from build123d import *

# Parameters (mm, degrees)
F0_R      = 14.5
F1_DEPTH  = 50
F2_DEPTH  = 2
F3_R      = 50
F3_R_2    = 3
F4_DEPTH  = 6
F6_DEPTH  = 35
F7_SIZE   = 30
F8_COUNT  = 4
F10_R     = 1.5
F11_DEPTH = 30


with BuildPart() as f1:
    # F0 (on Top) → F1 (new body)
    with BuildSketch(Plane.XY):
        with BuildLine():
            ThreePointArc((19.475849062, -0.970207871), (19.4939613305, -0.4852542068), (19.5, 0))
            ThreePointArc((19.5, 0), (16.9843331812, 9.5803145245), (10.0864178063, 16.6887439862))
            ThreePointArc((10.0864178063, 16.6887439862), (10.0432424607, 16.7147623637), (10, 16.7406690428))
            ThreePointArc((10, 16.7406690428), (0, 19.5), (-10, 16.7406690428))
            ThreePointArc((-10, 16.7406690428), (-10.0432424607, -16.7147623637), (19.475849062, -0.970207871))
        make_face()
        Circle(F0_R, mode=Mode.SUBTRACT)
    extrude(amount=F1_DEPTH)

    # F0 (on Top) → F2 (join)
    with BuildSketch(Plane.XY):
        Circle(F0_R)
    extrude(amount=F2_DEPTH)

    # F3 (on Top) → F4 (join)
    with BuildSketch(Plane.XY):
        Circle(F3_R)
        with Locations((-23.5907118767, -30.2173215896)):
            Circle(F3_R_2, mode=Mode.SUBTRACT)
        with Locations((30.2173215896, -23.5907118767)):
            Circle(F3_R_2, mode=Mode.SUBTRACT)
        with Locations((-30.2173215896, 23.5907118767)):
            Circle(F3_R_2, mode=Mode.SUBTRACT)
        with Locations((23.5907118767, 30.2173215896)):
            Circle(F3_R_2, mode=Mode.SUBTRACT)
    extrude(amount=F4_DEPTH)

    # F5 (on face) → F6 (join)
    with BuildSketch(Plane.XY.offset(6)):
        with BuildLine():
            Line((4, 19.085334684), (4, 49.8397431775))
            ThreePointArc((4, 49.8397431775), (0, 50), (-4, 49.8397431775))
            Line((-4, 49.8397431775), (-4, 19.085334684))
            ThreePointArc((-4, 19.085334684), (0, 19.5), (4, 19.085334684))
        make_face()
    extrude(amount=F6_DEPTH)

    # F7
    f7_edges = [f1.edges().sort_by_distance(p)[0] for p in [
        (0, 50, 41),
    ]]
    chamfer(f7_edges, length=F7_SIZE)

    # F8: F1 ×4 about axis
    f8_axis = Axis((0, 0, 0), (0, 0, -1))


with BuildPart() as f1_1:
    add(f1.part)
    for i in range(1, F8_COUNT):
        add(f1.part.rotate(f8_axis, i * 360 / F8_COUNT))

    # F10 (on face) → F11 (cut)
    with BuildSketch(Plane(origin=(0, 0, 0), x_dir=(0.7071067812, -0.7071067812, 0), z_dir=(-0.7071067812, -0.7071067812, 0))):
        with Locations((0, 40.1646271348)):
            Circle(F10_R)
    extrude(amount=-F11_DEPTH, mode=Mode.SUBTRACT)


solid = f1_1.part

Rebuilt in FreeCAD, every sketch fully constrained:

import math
import FreeCAD as App
import Part
import Sketcher
from FreeCAD import Vector
Q = App.Units.Quantity


def edges_at(feature, points):
    """Names of the edges that pass closest to the given points."""
    edges = feature.Shape.Edges
    near = lambda p: min(range(len(edges)), key=lambda i: edges[i].distToShape(Part.Vertex(*p))[0])
    return sorted({f"Edge{near(p) + 1}" for p in points})

doc = App.newDocument("Part")
body = doc.addObject("PartDesign::Body", "Body")

# Sketch on XY plane
sketch1 = body.newObject("Sketcher::SketchObject", "Sketch")
sketch1.AttachmentSupport = (doc.getObject("XY_Plane"), [""])
sketch1.MapMode = "FlatFace"
sketch1.addGeometry(Part.ArcOfCircle(Part.Circle(Vector(0, 0, 0), Vector(0, 0, 1), 19.5), math.radians(-2.85), math.radians(0)), False)
sketch1.addGeometry(Part.ArcOfCircle(Part.Circle(Vector(0, 0, 0), Vector(0, 0, 1), 19.5), math.radians(0), math.radians(59)), False)
sketch1.addGeometry(Part.ArcOfCircle(Part.Circle(Vector(0, 0, 0), Vector(0, 0, 1), 19.5), math.radians(58.85), math.radians(59.15)), False)
sketch1.addGeometry(Part.ArcOfCircle(Part.Circle(Vector(0, 0, 0), Vector(0, 0, 1), 19.5), math.radians(59), math.radians(121)), False)
sketch1.addGeometry(Part.ArcOfCircle(Part.Circle(Vector(0, 0, 0), Vector(0, 0, 1), 19.5), math.radians(121), math.radians(357)), False)
sketch1.addGeometry(Part.Circle(Vector(0, 0, 0), Vector(0, 0, 1), 14.5), False)
sketch1.addConstraint(Sketcher.Constraint("Tangent", 0, 2, 1, 1))
sketch1.addConstraint(Sketcher.Constraint("Tangent", 1, 2, 2, 1))
sketch1.addConstraint(Sketcher.Constraint("Tangent", 2, 2, 3, 1))
sketch1.addConstraint(Sketcher.Constraint("Tangent", 3, 2, 4, 1))
sketch1.addConstraint(Sketcher.Constraint("Tangent", 4, 2, 0, 1))
sketch1.addConstraint(Sketcher.Constraint("Coincident", 0, 3, -1, 1))
sketch1.addConstraint(Sketcher.Constraint("Coincident", 2, 3, -1, 1))
sketch1.addConstraint(Sketcher.Constraint("Coincident", 5, 3, -1, 1))
sketch1.addConstraint(Sketcher.Constraint("PointOnObject", 0, 2, -1))
sketch1.addConstraint(Sketcher.Constraint("Horizontal", 2, 2, 3, 2))
sketch1.addConstraint(Sketcher.Constraint("Diameter", 5, Q("29 mm")))
sketch1.addConstraint(Sketcher.Constraint("Radius", 0, Q("19.5 mm")))
sketch1.addConstraint(Sketcher.Constraint("DistanceX", -1, 1, 2, 2, Q("10 mm")))
sketch1.addConstraint(Sketcher.Constraint("DistanceX", -1, 1, 4, 2, Q("19.475849 mm")))
sketch1.addConstraint(Sketcher.Constraint("DistanceX", -1, 1, 1, 2, Q("10.086418 mm")))
pad1 = body.newObject("PartDesign::Pad", "Pad")
pad1.Profile = sketch1
pad1.Length = 50

# Sketch on XY plane
sketch2 = body.newObject("Sketcher::SketchObject", "Sketch001")
sketch2.AttachmentSupport = (doc.getObject("XY_Plane"), [""])
sketch2.MapMode = "FlatFace"
sketch2.addGeometry(Part.Circle(Vector(0, 0, 0), Vector(0, 0, 1), 14), False)
sketch2.addConstraint(Sketcher.Constraint("Coincident", 0, 3, -1, 1))
sketch2.addConstraint(Sketcher.Constraint("Diameter", 0, Q("29 mm")))
pad2 = body.newObject("PartDesign::Pad", "Pad001")
pad2.Profile = sketch2
pad2.Length = 2

# Sketch on XY plane
sketch3 = body.newObject("Sketcher::SketchObject", "Sketch002")
sketch3.AttachmentSupport = (doc.getObject("XY_Plane"), [""])
sketch3.MapMode = "FlatFace"
sketch3.addGeometry(Part.Circle(Vector(0, 0, 0), Vector(0, 0, 1), 50), False)
sketch3.addGeometry(Part.Circle(Vector(-23.6, -30.2, 0), Vector(0, 0, 1), 3), False)
sketch3.addGeometry(Part.Circle(Vector(30.2, -23.6, 0), Vector(0, 0, 1), 3), False)
sketch3.addGeometry(Part.Circle(Vector(-30.2, 23.6, 0), Vector(0, 0, 1), 3), False)
sketch3.addGeometry(Part.Circle(Vector(23.6, 30.2, 0), Vector(0, 0, 1), 3), False)
sketch3.addConstraint(Sketcher.Constraint("Coincident", 0, 3, -1, 1))
sketch3.addConstraint(Sketcher.Constraint("Equal", 1, 2))
sketch3.addConstraint(Sketcher.Constraint("Equal", 2, 3))
sketch3.addConstraint(Sketcher.Constraint("Equal", 3, 4))
sketch3.addConstraint(Sketcher.Constraint("Symmetric", 2, 3, 3, 3, -1, 1))
sketch3.addConstraint(Sketcher.Constraint("Symmetric", 1, 3, 4, 3, -1, 1))
sketch3.addConstraint(Sketcher.Constraint("Diameter", 0, Q("100 mm")))
sketch3.addConstraint(Sketcher.Constraint("Diameter", 1, Q("6 mm")))
sketch3.addConstraint(Sketcher.Constraint("DistanceX", 1, 3, -1, 1, Q("23.590712 mm")))
sketch3.addConstraint(Sketcher.Constraint("DistanceY", 1, 3, -1, 1, Q("30.217322 mm")))
sketch3.addConstraint(Sketcher.Constraint("DistanceX", -1, 1, 2, 3, Q("30.217322 mm")))
sketch3.addConstraint(Sketcher.Constraint("DistanceY", 2, 3, -1, 1, Q("23.590712 mm")))
pad3 = body.newObject("PartDesign::Pad", "Pad002")
pad3.Profile = sketch3
pad3.Length = 6

# Sketch on XY plane
sketch4 = body.newObject("Sketcher::SketchObject", "Sketch003")
sketch4.AttachmentSupport = (doc.getObject("XY_Plane"), [""])
sketch4.MapMode = "FlatFace"
sketch4.AttachmentOffset = App.Placement(Vector(0, 0, 6), App.Rotation())
sketch4.addGeometry(Part.LineSegment(Vector(4, 19, 0), Vector(4, 50, 0)), False)
sketch4.addGeometry(Part.ArcOfCircle(Part.Circle(Vector(0, 0, 0), Vector(0, 0, 1), 50), math.radians(85.41), math.radians(94.59)), False)
sketch4.addGeometry(Part.LineSegment(Vector(-4, 50, 0), Vector(-4, 19, 0)), False)
sketch4.addGeometry(Part.ArcOfCircle(Part.Circle(Vector(0, 0, 0), Vector(0, 0, 1), 20), math.radians(78), math.radians(102)), False)
sketch4.addConstraint(Sketcher.Constraint("Coincident", 0, 2, 1, 1))
sketch4.addConstraint(Sketcher.Constraint("Coincident", 1, 2, 2, 1))
sketch4.addConstraint(Sketcher.Constraint("Coincident", 2, 2, 3, 2))
sketch4.addConstraint(Sketcher.Constraint("Coincident", 3, 1, 0, 1))
sketch4.addConstraint(Sketcher.Constraint("Vertical", 0))
sketch4.addConstraint(Sketcher.Constraint("Vertical", 2))
sketch4.addConstraint(Sketcher.Constraint("Coincident", 1, 3, -1, 1))
sketch4.addConstraint(Sketcher.Constraint("Coincident", 3, 3, -1, 1))
sketch4.addConstraint(Sketcher.Constraint("Horizontal", 0, 2, 1, 2))
sketch4.addConstraint(Sketcher.Constraint("Radius", 1, Q("50 mm")))
sketch4.addConstraint(Sketcher.Constraint("Radius", 3, Q("19.5 mm")))
sketch4.addConstraint(Sketcher.Constraint("DistanceX", -1, 1, 0, 2, Q("4 mm")))
pad4 = body.newObject("PartDesign::Pad", "Pad003")
pad4.Profile = sketch4
pad4.Length = 35
doc.recompute()

chamfer = body.newObject("PartDesign::Chamfer", "Chamfer")
chamfer.Base = (pad4, edges_at(pad4, [(0, 50, 41)]))
chamfer.Size = 30
body2 = doc.addObject("PartDesign::Body", "Body001")
doc.recompute()

body2.BaseFeature = body
doc.recompute()

body3 = doc.addObject("PartDesign::Body", "Body002")
body3.BaseFeature = body
body3.Placement = App.Placement(Vector(0, 0, 0), App.Rotation(Vector(0, 0, -1), 90))
boolean = body2.newObject("PartDesign::Boolean", "Boolean")
boolean.Type = "Fuse"
boolean.addObjects([body3])
doc.recompute()

body4 = doc.addObject("PartDesign::Body", "Body003")
body4.BaseFeature = body
body4.Placement = App.Placement(Vector(0, 0, 0), App.Rotation(Vector(0, 0, -1), 180))
boolean2 = body2.newObject("PartDesign::Boolean", "Boolean001")
boolean2.Type = "Fuse"
boolean2.addObjects([body4])
doc.recompute()

body.Placement = App.Placement(Vector(0, 0, 0), App.Rotation(Vector(0, 0, -1), 270))
boolean3 = body2.newObject("PartDesign::Boolean", "Boolean002")
boolean3.Type = "Fuse"
boolean3.addObjects([body])

# Sketch on an angled plane
sketch5 = body2.newObject("Sketcher::SketchObject", "Sketch004")
sketch5.Placement = App.Placement(Vector(0, 0, 0), App.Rotation(Vector(0.707106781, -0.707106781, 0), Vector(0, 0, 0.999999999), Vector(-0.707106781, -0.707106781, 0), "ZXY"))
sketch5.addGeometry(Part.Circle(Vector(0, 40.2, 0), Vector(0, 0, 1), 1.5), False)
sketch5.addConstraint(Sketcher.Constraint("PointOnObject", 0, 3, -2))
sketch5.addConstraint(Sketcher.Constraint("Diameter", 0, Q("3 mm")))
sketch5.addConstraint(Sketcher.Constraint("DistanceY", -1, 1, 0, 3, Q("40.164627 mm")))
pocket1 = body2.newObject("PartDesign::Pocket", "Pocket")
pocket1.Profile = sketch5
pocket1.Length = 30

doc.recompute()
